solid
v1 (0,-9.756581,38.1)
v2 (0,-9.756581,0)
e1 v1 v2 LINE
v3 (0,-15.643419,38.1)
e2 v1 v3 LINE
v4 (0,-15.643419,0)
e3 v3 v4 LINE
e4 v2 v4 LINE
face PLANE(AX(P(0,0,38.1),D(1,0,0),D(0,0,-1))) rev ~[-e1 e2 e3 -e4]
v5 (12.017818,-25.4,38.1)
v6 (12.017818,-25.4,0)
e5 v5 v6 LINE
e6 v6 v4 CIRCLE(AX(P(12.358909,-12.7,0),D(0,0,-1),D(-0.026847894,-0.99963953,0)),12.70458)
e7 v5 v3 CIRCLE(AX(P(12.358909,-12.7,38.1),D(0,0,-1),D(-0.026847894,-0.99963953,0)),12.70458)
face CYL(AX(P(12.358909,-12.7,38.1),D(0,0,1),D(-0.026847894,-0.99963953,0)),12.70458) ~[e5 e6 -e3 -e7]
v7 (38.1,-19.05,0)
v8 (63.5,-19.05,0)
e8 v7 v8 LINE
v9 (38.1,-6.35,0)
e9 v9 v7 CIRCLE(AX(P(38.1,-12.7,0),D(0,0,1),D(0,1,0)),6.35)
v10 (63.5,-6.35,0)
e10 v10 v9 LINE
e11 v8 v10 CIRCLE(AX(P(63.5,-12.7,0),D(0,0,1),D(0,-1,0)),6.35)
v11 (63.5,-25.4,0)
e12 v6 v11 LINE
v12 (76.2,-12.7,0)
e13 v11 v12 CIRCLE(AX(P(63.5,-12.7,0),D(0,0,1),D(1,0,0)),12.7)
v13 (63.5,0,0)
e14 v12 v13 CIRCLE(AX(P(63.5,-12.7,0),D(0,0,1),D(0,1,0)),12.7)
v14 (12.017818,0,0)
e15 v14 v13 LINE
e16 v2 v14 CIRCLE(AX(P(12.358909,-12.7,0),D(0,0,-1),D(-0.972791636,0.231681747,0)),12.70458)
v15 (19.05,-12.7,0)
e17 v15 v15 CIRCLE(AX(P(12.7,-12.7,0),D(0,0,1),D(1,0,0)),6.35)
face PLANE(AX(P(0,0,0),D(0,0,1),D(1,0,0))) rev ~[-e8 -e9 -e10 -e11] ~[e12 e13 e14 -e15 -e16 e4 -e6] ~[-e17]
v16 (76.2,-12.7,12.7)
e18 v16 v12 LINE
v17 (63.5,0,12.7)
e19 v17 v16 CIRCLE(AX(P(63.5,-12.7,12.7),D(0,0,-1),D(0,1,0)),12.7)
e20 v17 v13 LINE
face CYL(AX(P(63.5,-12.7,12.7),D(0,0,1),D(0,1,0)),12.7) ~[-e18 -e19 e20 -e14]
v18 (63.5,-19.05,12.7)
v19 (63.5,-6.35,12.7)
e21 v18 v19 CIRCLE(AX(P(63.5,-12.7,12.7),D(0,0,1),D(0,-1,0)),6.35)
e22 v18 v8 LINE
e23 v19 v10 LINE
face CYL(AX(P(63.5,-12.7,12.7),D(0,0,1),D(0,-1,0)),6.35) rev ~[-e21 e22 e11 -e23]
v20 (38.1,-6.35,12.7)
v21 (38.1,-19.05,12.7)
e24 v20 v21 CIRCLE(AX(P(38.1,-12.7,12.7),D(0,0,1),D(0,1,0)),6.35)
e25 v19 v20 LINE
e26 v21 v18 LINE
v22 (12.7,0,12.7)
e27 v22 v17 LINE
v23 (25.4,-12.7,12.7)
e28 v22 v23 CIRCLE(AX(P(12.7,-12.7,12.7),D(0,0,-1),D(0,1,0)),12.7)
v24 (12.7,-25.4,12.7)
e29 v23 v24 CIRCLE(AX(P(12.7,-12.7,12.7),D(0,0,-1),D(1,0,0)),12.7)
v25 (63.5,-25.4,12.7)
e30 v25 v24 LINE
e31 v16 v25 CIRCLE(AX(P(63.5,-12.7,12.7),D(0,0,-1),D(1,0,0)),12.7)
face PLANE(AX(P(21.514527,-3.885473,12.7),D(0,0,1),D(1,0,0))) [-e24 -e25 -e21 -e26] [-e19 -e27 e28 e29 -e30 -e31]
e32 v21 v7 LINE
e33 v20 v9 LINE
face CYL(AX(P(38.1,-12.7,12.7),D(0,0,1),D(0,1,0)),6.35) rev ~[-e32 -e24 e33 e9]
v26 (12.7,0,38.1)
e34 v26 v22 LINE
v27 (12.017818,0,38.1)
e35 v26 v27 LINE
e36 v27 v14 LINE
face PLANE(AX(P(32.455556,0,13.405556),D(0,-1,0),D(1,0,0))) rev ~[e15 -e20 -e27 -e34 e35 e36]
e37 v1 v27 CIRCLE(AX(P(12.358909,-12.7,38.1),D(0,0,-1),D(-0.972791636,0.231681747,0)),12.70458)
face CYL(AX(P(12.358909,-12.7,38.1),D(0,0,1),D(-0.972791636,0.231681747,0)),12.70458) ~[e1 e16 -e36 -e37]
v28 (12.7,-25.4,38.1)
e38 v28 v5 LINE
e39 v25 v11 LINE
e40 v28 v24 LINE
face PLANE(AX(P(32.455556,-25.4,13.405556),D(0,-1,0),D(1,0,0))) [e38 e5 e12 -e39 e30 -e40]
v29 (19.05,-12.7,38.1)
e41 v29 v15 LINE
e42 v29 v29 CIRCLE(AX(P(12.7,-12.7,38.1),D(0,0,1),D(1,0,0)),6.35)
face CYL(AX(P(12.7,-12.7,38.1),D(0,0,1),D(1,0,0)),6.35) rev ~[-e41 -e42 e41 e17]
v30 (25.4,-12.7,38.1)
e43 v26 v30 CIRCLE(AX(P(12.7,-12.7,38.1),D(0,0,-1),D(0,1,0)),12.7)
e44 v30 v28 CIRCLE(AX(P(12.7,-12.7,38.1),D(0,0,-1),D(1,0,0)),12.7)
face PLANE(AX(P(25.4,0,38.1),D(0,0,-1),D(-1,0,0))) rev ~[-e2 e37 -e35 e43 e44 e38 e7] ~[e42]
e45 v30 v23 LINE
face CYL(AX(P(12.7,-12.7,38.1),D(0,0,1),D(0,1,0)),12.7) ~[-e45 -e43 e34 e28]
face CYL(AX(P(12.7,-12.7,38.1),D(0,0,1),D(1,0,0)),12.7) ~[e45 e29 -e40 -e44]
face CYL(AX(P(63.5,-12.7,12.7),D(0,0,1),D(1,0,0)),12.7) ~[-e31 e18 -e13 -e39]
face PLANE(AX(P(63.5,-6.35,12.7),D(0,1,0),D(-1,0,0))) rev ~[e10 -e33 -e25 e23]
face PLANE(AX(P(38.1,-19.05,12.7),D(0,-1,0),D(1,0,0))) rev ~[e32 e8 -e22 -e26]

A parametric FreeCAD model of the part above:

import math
import FreeCAD as App
import Part
import Sketcher

V = App.Vector
Q = App.Units.Quantity


def add_polygon(sketch, points):
    """Adds a closed chain of lines whose ends are joined by coincident constraints."""
    first, n = sketch.GeometryCount, len(points)
    for a, b in zip(points, points[1:] + points[:1]):
        sketch.addGeometry(Part.LineSegment(App.Vector(*a, 0), App.Vector(*b, 0)), False)
    for i in range(n):
        sketch.addConstraint(Sketcher.Constraint("Coincident", first + i, 2, first + (i + 1) % n, 1))

doc = App.newDocument("Part")
body = doc.addObject("PartDesign::Body", "Body")

# Sketch on XZ plane
sketch1 = doc.addObject("Sketcher::SketchObject", "Sketch")
body.addObject(sketch1)
sketch1.AttachmentSupport = (doc.XZ_Plane, [""])
sketch1.MapMode = "FlatFace"
add_polygon(sketch1, [(0, 38.1), (0, 0), (76.2, 0), (76.2, 12.7), (25.4, 12.7), (25.4, 38.1)])  # lines 0-5
sketch1.addConstraint(Sketcher.Constraint("Vertical", 0))
sketch1.addConstraint(Sketcher.Constraint("Horizontal", 1))
sketch1.addConstraint(Sketcher.Constraint("Vertical", 2))
sketch1.addConstraint(Sketcher.Constraint("Horizontal", 3))
sketch1.addConstraint(Sketcher.Constraint("Vertical", 4))
sketch1.addConstraint(Sketcher.Constraint("Horizontal", 5))
sketch1.addConstraint(Sketcher.Constraint("Coincident", 0, 2, -1, 1))
sketch1.addConstraint(Sketcher.Constraint("Equal", 5, 4))
sketch1.addConstraint(Sketcher.Constraint("DistanceX", 1, 1, 1, 2, Q("3 in")))
sketch1.addConstraint(Sketcher.Constraint("DistanceX", 3, 2, 3, 1, Q("2 in")))
sketch1.addConstraint(Sketcher.Constraint("DistanceY", 0, 2, 0, 1, Q("1.5 in")))
pad1 = doc.addObject("PartDesign::Pad", "Pad")
body.addObject(pad1)
pad1.Profile = sketch1
pad1.Length = Q("1 in")

# Sketch on XY plane
sketch2 = doc.addObject("Sketcher::SketchObject", "Sketch001")
body.addObject(sketch2)
sketch2.AttachmentSupport = (doc.XY_Plane, [""])
sketch2.MapMode = "FlatFace"
sketch2.AttachmentOffset = App.Placement(V(0, 0, 1.5 * 25.4), App.Rotation())
sketch2.addGeometry(Part.ArcOfCircle(Part.Circle(V(12.358909, -12.7, 0), V(0, 0, 1), 12.70458), math.radians(-166.603897), math.radians(-91.538456)), False)
sketch2.addGeometry(Part.LineSegment(V(0, -15.643419, 0), V(0, -25.4, 0)), False)
sketch2.addGeometry(Part.LineSegment(V(0, -25.4, 0), V(12.017818, -25.4, 0)), False)
sketch2.addGeometry(Part.ArcOfCircle(Part.Circle(V(12.358909, -12.7, 0), V(0, 0, 1), 12.70458), math.radians(91.538456), math.radians(166.603897)), False)
sketch2.addGeometry(Part.LineSegment(V(12.017818, 0, 0), V(0, 0, 0)), False)
sketch2.addGeometry(Part.LineSegment(V(0, 0, 0), V(0, -9.756581, 0)), False)
sketch2.addGeometry(Part.Circle(V(12.7, -12.7, 0), V(0, 0, 1), 6.35), False)
sketch2.addConstraint(Sketcher.Constraint("Coincident", 0, 1, 1, 1))
sketch2.addConstraint(Sketcher.Constraint("Coincident", 1, 2, 2, 1))
sketch2.addConstraint(Sketcher.Constraint("Coincident", 2, 2, 0, 2))
sketch2.addConstraint(Sketcher.Constraint("Coincident", 3, 1, 4, 1))
sketch2.addConstraint(Sketcher.Constraint("Coincident", 4, 2, 5, 1))
sketch2.addConstraint(Sketcher.Constraint("Coincident", 5, 2, 3, 2))
sketch2.addConstraint(Sketcher.Constraint("Vertical", 1))
sketch2.addConstraint(Sketcher.Constraint("Horizontal", 2))
sketch2.addConstraint(Sketcher.Constraint("Horizontal", 4))
sketch2.addConstraint(Sketcher.Constraint("Vertical", 5))
sketch2.addConstraint(Sketcher.Constraint("Coincident", 4, 2, -1, 1))
sketch2.addConstraint(Sketcher.Constraint("Coincident", 3, 3, 0, 3))
sketch2.addConstraint(Sketcher.Constraint("Equal", 0, 3))
sketch2.addConstraint(Sketcher.Constraint("PointOnObject", 0, 1, -2))
sketch2.addConstraint(Sketcher.Constraint("Horizontal", 3, 3, 6, 3))
sketch2.addConstraint(Sketcher.Constraint("Vertical", 2, 2, 3, 1))
sketch2.addConstraint(Sketcher.Constraint("Diameter", 6, Q("0.5 in")))
sketch2.addConstraint(Sketcher.Constraint("DistanceY", 1, 2, -1, 1, Q("1 in")))
sketch2.addConstraint(Sketcher.Constraint("DistanceX", -1, 1, 6, 3, Q("0.5 in")))
sketch2.addConstraint(Sketcher.Constraint("Radius", 0, 12.70458))
sketch2.addConstraint(Sketcher.Constraint("DistanceY", 1, 2, 1, 1, 9.756581))
pocket1 = doc.addObject("PartDesign::Pocket", "Pocket")
body.addObject(pocket1)
pocket1.Profile = sketch2
pocket1.Length = Q("1.5 in")

# Sketch on XY plane
sketch3 = doc.addObject("Sketcher::SketchObject", "Sketch002")
body.addObject(sketch3)
sketch3.AttachmentSupport = (doc.XY_Plane, [""])
sketch3.MapMode = "FlatFace"
sketch3.AttachmentOffset = App.Placement(V(0, 0, 1.5 * 25.4), App.Rotation())
sketch3.addGeometry(Part.ArcOfCircle(Part.Circle(V(12.7, -12.7, 0), V(0, 0, 1), 12.7), math.radians(0), math.radians(90)), False)
sketch3.addGeometry(Part.LineSegment(V(25.4, -12.7, 0), V(25.4, 0, 0)), False)
sketch3.addGeometry(Part.LineSegment(V(25.4, 0, 0), V(12.7, 0, 0)), False)
sketch3.addGeometry(Part.ArcOfCircle(Part.Circle(V(12.7, -12.7, 0), V(0, 0, 1), 12.7), math.radians(-90), math.radians(0)), False)
sketch3.addGeometry(Part.LineSegment(V(12.7, -25.4, 0), V(25.4, -25.4, 0)), False)
sketch3.addGeometry(Part.LineSegment(V(25.4, -25.4, 0), V(25.4, -12.7, 0)), False)
sketch3.addConstraint(Sketcher.Constraint("Tangent", 0, 1, 1, 1))
sketch3.addConstraint(Sketcher.Constraint("Coincident", 1, 2, 2, 1))
sketch3.addConstraint(Sketcher.Constraint("Tangent", 2, 2, 0, 2))
sketch3.addConstraint(Sketcher.Constraint("Tangent", 3, 1, 4, 1))
sketch3.addConstraint(Sketcher.Constraint("Coincident", 4, 2, 5, 1))
sketch3.addConstraint(Sketcher.Constraint("Tangent", 5, 2, 3, 2))
sketch3.addConstraint(Sketcher.Constraint("Vertical", 1))
sketch3.addConstraint(Sketcher.Constraint("Horizontal", 2))
sketch3.addConstraint(Sketcher.Constraint("Horizontal", 4))
sketch3.addConstraint(Sketcher.Constraint("Vertical", 5))
sketch3.addConstraint(Sketcher.Constraint("Coincident", 3, 3, 0, 3))
sketch3.addConstraint(Sketcher.Constraint("Equal", 0, 3))
sketch3.addConstraint(Sketcher.Constraint("PointOnObject", 1, 2, -1))
sketch3.addConstraint(Sketcher.Constraint("Radius", 0, Q("0.5 in")))
sketch3.addConstraint(Sketcher.Constraint("DistanceX", -1, 1, 0, 1, Q("1 in")))
pocket2 = doc.addObject("PartDesign::Pocket", "Pocket001")
body.addObject(pocket2)
pocket2.Profile = sketch3
pocket2.Length = Q("1 in")

# Sketch on XY plane
sketch4 = doc.addObject("Sketcher::SketchObject", "Sketch003")
body.addObject(sketch4)
sketch4.AttachmentSupport = (doc.XY_Plane, [""])
sketch4.MapMode = "FlatFace"
sketch4.AttachmentOffset = App.Placement(V(0, 0, 0.5 * 25.4), App.Rotation())
sketch4.addGeometry(Part.LineSegment(V(63.5, -6.35, 0), V(38.1, -6.35, 0)), False)
sketch4.addGeometry(Part.ArcOfCircle(Part.Circle(V(38.1, -12.7, 0), V(0, 0, 1), 6.35), math.radians(90), math.radians(270)), False)
sketch4.addGeometry(Part.LineSegment(V(38.1, -19.05, 0), V(63.5, -19.05, 0)), False)
sketch4.addGeometry(Part.ArcOfCircle(Part.Circle(V(63.5, -12.7, 0), V(0, 0, 1), 6.35), math.radians(-90), math.radians(90)), False)
sketch4.addGeometry(Part.ArcOfCircle(Part.Circle(V(63.5, -12.7, 0), V(0, 0, 1), 12.7), math.radians(0), math.radians(90)), False)
sketch4.addGeometry(Part.LineSegment(V(76.2, -12.7, 0), V(76.2, 0, 0)), False)
sketch4.addGeometry(Part.LineSegment(V(76.2, 0, 0), V(63.5, 0, 0)), False)
sketch4.addGeometry(Part.ArcOfCircle(Part.Circle(V(63.5, -12.7, 0), V(0, 0, 1), 12.7), math.radians(-90), math.radians(0)), False)
sketch4.addGeometry(Part.LineSegment(V(63.5, -25.4, 0), V(76.2, -25.4, 0)), False)
sketch4.addGeometry(Part.LineSegment(V(76.2, -25.4, 0), V(76.2, -12.7, 0)), False)
sketch4.addConstraint(Sketcher.Constraint("Tangent", 0, 2, 1, 1))
sketch4.addConstraint(Sketcher.Constraint("Tangent", 1, 2, 2, 1))
sketch4.addConstraint(Sketcher.Constraint("Tangent", 2, 2, 3, 1))
sketch4.addConstraint(Sketcher.Constraint("Tangent", 3, 2, 0, 1))
sketch4.addConstraint(Sketcher.Constraint("Tangent", 4, 1, 5, 1))
sketch4.addConstraint(Sketcher.Constraint("Coincident", 5, 2, 6, 1))
sketch4.addConstraint(Sketcher.Constraint("Tangent", 6, 2, 4, 2))
sketch4.addConstraint(Sketcher.Constraint("Tangent", 7, 1, 8, 1))
sketch4.addConstraint(Sketcher.Constraint("Coincident", 8, 2, 9, 1))
sketch4.addConstraint(Sketcher.Constraint("Tangent", 9, 2, 7, 2))
sketch4.addConstraint(Sketcher.Constraint("Horizontal", 0))
sketch4.addConstraint(Sketcher.Constraint("Horizontal", 2))
sketch4.addConstraint(Sketcher.Constraint("Vertical", 5))
sketch4.addConstraint(Sketcher.Constraint("Horizontal", 6))
sketch4.addConstraint(Sketcher.Constraint("Horizontal", 8))
sketch4.addConstraint(Sketcher.Constraint("Vertical", 9))
sketch4.addConstraint(Sketcher.Constraint("Coincident", 4, 3, 3, 3))
sketch4.addConstraint(Sketcher.Constraint("Coincident", 7, 3, 3, 3))
sketch4.addConstraint(Sketcher.Constraint("Equal", 4, 7))
sketch4.addConstraint(Sketcher.Constraint("PointOnObject", 5, 2, -1))
sketch4.addConstraint(Sketcher.Constraint("Radius", 4, Q("0.5 in")))
sketch4.addConstraint(Sketcher.Constraint("DistanceX", 0, 2, 0, 1, Q("1 in")))
sketch4.addConstraint(Sketcher.Constraint("Radius", 1, Q("0.25 in")))
sketch4.addConstraint(Sketcher.Constraint("DistanceX", -1, 1, 4, 1, Q("3 in")))
pocket3 = doc.addObject("PartDesign::Pocket", "Pocket002")
body.addObject(pocket3)
pocket3.Profile = sketch4
pocket3.Length = Q("1 in")

doc.recompute()
